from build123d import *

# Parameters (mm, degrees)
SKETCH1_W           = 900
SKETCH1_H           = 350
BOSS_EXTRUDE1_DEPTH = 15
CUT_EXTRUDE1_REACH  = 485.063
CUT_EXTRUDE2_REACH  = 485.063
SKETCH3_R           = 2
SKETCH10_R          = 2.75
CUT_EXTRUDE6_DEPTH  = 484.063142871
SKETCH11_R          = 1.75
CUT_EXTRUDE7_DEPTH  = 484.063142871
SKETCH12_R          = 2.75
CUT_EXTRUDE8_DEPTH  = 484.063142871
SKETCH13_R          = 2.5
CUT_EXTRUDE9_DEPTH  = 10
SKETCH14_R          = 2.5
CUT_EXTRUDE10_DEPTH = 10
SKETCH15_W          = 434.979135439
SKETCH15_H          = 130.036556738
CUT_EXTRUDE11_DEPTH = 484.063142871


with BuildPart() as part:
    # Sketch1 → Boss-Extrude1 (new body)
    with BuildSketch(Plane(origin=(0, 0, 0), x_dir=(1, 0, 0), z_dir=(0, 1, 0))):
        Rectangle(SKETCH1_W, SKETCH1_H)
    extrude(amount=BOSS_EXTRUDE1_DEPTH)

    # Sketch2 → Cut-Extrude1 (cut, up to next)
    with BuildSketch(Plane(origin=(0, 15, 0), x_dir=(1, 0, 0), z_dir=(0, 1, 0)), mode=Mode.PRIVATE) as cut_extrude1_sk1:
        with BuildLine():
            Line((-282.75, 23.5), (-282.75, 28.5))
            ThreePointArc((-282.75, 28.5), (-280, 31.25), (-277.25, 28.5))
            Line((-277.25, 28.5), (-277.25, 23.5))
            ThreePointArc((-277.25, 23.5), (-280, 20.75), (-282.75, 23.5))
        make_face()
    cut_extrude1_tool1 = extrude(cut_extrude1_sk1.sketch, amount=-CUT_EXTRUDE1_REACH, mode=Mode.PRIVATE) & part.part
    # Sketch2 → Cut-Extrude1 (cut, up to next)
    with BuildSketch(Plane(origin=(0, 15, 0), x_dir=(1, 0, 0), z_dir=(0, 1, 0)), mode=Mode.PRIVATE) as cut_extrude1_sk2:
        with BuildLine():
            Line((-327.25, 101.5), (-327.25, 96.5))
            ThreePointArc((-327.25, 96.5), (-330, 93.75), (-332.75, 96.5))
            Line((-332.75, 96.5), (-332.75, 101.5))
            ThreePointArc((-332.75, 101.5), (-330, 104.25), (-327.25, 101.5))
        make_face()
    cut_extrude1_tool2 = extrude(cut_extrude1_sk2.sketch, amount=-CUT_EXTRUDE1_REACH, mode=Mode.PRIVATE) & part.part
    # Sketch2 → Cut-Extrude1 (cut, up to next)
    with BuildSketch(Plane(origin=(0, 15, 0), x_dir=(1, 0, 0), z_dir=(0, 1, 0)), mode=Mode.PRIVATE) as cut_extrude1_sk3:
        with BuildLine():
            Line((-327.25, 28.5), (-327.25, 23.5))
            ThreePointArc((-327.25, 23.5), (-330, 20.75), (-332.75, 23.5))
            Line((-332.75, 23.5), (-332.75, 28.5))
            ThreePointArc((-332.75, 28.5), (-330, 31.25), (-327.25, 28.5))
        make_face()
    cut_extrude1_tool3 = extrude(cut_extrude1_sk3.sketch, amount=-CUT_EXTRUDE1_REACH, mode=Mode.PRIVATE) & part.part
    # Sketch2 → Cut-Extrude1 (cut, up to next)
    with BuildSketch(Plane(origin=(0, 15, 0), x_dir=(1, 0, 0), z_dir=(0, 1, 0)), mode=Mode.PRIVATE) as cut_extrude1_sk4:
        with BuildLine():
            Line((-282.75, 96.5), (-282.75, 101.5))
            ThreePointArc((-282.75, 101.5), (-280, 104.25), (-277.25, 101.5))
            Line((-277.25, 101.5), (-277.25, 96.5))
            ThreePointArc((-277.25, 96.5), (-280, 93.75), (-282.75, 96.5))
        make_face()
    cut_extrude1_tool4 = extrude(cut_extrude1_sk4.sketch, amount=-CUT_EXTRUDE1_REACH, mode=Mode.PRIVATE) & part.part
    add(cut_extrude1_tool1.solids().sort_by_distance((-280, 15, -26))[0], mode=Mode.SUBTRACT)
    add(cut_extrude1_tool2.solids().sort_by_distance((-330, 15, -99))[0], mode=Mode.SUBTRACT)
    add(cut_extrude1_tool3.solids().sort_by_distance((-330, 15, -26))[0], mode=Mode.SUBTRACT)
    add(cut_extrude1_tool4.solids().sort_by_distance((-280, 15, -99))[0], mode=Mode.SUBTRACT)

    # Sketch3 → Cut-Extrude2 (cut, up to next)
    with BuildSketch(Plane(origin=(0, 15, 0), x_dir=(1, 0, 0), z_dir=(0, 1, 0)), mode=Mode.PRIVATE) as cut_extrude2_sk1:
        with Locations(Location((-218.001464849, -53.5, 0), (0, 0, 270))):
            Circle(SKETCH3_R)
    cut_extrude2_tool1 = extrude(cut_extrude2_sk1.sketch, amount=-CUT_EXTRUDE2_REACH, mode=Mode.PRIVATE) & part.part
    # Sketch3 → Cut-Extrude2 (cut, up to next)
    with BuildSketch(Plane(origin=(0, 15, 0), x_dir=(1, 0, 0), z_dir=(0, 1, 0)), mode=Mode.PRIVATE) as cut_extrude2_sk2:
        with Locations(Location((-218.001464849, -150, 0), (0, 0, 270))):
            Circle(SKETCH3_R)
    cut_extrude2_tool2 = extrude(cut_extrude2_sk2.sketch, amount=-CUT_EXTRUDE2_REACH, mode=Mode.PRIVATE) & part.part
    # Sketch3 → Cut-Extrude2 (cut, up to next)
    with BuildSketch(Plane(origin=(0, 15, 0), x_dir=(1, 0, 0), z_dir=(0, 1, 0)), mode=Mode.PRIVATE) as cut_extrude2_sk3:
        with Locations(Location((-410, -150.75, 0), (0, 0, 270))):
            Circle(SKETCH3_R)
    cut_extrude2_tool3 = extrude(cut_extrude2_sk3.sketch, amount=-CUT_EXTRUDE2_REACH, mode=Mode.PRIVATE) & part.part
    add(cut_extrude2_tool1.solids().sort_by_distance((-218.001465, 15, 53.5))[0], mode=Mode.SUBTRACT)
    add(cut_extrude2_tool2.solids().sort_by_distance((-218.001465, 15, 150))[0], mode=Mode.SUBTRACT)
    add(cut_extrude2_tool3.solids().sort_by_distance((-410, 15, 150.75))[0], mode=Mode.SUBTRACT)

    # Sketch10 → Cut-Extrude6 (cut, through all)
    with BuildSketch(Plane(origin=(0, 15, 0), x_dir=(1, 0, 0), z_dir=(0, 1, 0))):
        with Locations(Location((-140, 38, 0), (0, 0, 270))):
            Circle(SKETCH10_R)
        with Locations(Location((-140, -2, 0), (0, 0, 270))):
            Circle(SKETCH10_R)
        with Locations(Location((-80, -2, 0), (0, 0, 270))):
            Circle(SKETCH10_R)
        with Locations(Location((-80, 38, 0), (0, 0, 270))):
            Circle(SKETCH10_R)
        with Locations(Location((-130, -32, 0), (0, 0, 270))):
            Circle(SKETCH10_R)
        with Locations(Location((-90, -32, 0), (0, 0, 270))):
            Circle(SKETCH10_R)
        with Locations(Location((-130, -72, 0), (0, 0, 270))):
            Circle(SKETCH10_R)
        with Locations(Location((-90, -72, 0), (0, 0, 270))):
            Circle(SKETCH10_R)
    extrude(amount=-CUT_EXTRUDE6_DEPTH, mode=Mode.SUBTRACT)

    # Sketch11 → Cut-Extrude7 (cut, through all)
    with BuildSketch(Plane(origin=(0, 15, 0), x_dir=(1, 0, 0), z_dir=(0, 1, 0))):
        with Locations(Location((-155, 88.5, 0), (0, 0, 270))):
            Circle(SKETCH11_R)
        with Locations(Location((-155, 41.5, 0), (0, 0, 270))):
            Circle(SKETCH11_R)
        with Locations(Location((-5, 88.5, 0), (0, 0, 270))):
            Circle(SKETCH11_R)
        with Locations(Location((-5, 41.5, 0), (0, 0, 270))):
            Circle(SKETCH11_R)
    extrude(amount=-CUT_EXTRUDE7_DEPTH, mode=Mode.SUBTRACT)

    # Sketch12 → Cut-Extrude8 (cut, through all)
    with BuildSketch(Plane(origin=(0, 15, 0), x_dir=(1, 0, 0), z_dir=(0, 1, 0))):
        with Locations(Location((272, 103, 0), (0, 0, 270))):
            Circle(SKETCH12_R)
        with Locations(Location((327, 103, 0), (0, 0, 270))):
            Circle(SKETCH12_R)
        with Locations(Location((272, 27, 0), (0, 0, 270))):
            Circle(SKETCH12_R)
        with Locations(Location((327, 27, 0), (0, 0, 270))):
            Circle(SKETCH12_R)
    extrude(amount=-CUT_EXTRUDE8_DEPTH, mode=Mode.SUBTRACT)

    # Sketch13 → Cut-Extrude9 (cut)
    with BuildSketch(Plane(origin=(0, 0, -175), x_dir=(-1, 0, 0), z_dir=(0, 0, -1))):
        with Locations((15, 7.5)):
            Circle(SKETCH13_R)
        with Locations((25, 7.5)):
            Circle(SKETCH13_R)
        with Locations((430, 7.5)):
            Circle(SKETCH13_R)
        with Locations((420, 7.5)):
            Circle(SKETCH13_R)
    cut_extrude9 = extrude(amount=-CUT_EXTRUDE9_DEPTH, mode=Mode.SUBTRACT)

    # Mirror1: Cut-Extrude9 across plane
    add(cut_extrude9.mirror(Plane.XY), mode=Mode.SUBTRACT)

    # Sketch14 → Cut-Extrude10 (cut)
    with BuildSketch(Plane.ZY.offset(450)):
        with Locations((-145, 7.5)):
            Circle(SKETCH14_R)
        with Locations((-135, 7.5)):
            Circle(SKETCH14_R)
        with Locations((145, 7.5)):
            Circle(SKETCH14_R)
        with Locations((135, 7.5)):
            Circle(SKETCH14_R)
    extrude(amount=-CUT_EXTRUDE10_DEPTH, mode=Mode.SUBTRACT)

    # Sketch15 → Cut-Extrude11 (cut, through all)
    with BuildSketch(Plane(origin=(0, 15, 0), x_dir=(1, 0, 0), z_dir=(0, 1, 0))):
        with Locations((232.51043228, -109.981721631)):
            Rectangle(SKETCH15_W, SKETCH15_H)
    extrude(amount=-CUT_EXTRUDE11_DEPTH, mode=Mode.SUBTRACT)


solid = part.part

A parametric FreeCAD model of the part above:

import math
import FreeCAD as App
import Part
import Sketcher


def add_polygon(sketch, points):
    """Adds a closed chain of lines whose ends are joined by coincident constraints."""
    first, n = sketch.GeometryCount, len(points)
    for a, b in zip(points, points[1:] + points[:1]):
        sketch.addGeometry(Part.LineSegment(App.Vector(*a, 0), App.Vector(*b, 0)), False)
    for i in range(n):
        sketch.addConstraint(Sketcher.Constraint("Coincident", first + i, 2, first + (i + 1) % n, 1))

doc = App.newDocument("Part")
params = doc.addObject("Spreadsheet::Sheet", "Params")
for row, (alias, value) in enumerate([
    ("sketch1_width", "900 mm"),
    ("sketch1_height", "350 mm"),
    ("pad1_length", "15 mm"),
    ("sketch2_height", "5 mm"),
    ("sketch2_radius", "2.75 mm"),
    ("sketch3_height", "5 mm"),
    ("sketch3_radius", "2.75 mm"),
    ("sketch4_height", "5 mm"),
    ("sketch4_radius", "2.75 mm"),
    ("sketch5_height", "5 mm"),
    ("sketch5_radius", "2.75 mm"),
    ("sketch6_diameter", "4 mm"),
    ("sketch7_diameter", "4 mm"),
    ("sketch8_diameter", "4 mm"),
    ("sketch9_diameter", "5.5 mm"),
    ("sketch10_diameter", "3.5 mm"),
    ("sketch11_diameter", "5.5 mm"),
    ("sketch12_diameter", "5 mm"),
    ("pocket11_length", "10 mm"),
    ("sketch13_diameter", "5 mm"),
    ("pocket12_length", "10 mm"),
], start=1):
    params.set(f"A{row}", alias)
    params.set(f"B{row}", "=" + value)
    params.setAlias(f"B{row}", alias)

body = doc.addObject("PartDesign::Body", "Body")

# Sketch on XZ plane
sketch1 = body.newObject("Sketcher::SketchObject", "Sketch")
sketch1.AttachmentSupport = (doc.getObject("XZ_Plane"), [""])
sketch1.MapMode = "FlatFace"
add_polygon(sketch1, [(-450, -175), (-450, 175), (450, 175), (450, -175)])  # lines 0-3
sketch1.addConstraint([
    Sketcher.Constraint("Vertical", 0),
    Sketcher.Constraint("Horizontal", 1),
    Sketcher.Constraint("Vertical", 2),
    Sketcher.Constraint("Horizontal", 3),
    Sketcher.Constraint("Symmetric", 0, 2, 2, 2, -1, 1),
    Sketcher.Constraint("DistanceX", 1, 1, 1, 2, 900.0),
    Sketcher.Constraint("DistanceY", 0, 1, 0, 2, 350.0),
])
sketch1.setExpression("Constraints[9]", "Params.sketch1_width")
sketch1.setExpression("Constraints[10]", "Params.sketch1_height")
pad1 = body.newObject("PartDesign::Pad", "Pad")
pad1.Profile = sketch1
pad1.setExpression("Length", "Params.pad1_length")
pad1.Reversed = True

# Sketch on XZ plane
sketch2 = body.newObject("Sketcher::SketchObject", "Sketch001")
sketch2.AttachmentSupport = (doc.getObject("XZ_Plane"), [""])
sketch2.MapMode = "FlatFace"
sketch2.AttachmentOffset = App.Placement(App.Vector(0, 0, -15), App.Rotation())
sketch2.addGeometry([
    Part.LineSegment(App.Vector(-282.75, -28.5, 0), App.Vector(-282.75, -23.5, 0)),
    Part.ArcOfCircle(Part.Circle(App.Vector(-280, -23.5, 0), App.Vector(0, 0, 1), 2.75), math.radians(0), math.radians(180)),
    Part.LineSegment(App.Vector(-277.25, -23.5, 0), App.Vector(-277.25, -28.5, 0)),
    Part.ArcOfCircle(Part.Circle(App.Vector(-280, -28.5, 0), App.Vector(0, 0, 1), 2.75), math.radians(180), math.radians(360)),
], False)
sketch2.addConstraint([
    Sketcher.Constraint("Tangent", 0, 2, 1, 2),
    Sketcher.Constraint("Tangent", 1, 1, 2, 1),
    Sketcher.Constraint("Tangent", 2, 2, 3, 2),
    Sketcher.Constraint("Tangent", 3, 1, 0, 1),
    Sketcher.Constraint("Vertical", 0),
    Sketcher.Constraint("Vertical", 2),
    Sketcher.Constraint("DistanceY", 0, 1, 0, 2, 5.0),
    Sketcher.Constraint("Radius", 1, 2.75),
    Sketcher.Constraint("DistanceX", 1, 3, -1, 1, 280.0),
    Sketcher.Constraint("DistanceY", 1, 3, -1, 1, 23.5),
])
sketch2.setExpression("Constraints[6]", "Params.sketch2_height")
sketch2.setExpression("Constraints[7]", "Params.sketch2_radius")
pocket1 = body.newObject("PartDesign::Pocket", "Pocket")
pocket1.Profile = sketch2
pocket1.Type = "UpToFirst"
pocket1.Reversed = True

# Sketch on XZ plane
sketch3 = body.newObject("Sketcher::SketchObject", "Sketch002")
sketch3.AttachmentSupport = (doc.getObject("XZ_Plane"), [""])
sketch3.MapMode = "FlatFace"
sketch3.AttachmentOffset = App.Placement(App.Vector(0, 0, -15), App.Rotation())
sketch3.addGeometry([
    Part.LineSegment(App.Vector(-327.25, -96.5, 0), App.Vector(-327.25, -101.5, 0)),
    Part.ArcOfCircle(Part.Circle(App.Vector(-330, -101.5, 0), App.Vector(0, 0, 1), 2.75), math.radians(180), math.radians(360)),
    Part.LineSegment(App.Vector(-332.75, -101.5, 0), App.Vector(-332.75, -96.5, 0)),
    Part.ArcOfCircle(Part.Circle(App.Vector(-330, -96.5, 0), App.Vector(0, 0, 1), 2.75), math.radians(0), math.radians(180)),
], False)
sketch3.addConstraint([
    Sketcher.Constraint("Tangent", 0, 2, 1, 2),
    Sketcher.Constraint("Tangent", 1, 1, 2, 1),
    Sketcher.Constraint("Tangent", 2, 2, 3, 2),
    Sketcher.Constraint("Tangent", 3, 1, 0, 1),
    Sketcher.Constraint("Vertical", 0),
    Sketcher.Constraint("Vertical", 2),
    Sketcher.Constraint("DistanceY", 0, 2, 0, 1, 5.0),
    Sketcher.Constraint("Radius", 1, 2.75),
    Sketcher.Constraint("DistanceX", 1, 3, -1, 1, 330.0),
    Sketcher.Constraint("DistanceY", 1, 3, -1, 1, 101.5),
])
sketch3.setExpression("Constraints[6]", "Params.sketch3_height")
sketch3.setExpression("Constraints[7]", "Params.sketch3_radius")
pocket2 = body.newObject("PartDesign::Pocket", "Pocket001")
pocket2.Profile = sketch3
pocket2.Type = "UpToFirst"
pocket2.Reversed = True

# Sketch on XZ plane
sketch4 = body.newObject("Sketcher::SketchObject", "Sketch003")
sketch4.AttachmentSupport = (doc.getObject("XZ_Plane"), [""])
sketch4.MapMode = "FlatFace"
sketch4.AttachmentOffset = App.Placement(App.Vector(0, 0, -15), App.Rotation())
sketch4.addGeometry([
    Part.LineSegment(App.Vector(-327.25, -23.5, 0), App.Vector(-327.25, -28.5, 0)),
    Part.ArcOfCircle(Part.Circle(App.Vector(-330, -28.5, 0), App.Vector(0, 0, 1), 2.75), math.radians(180), math.radians(360)),
    Part.LineSegment(App.Vector(-332.75, -28.5, 0), App.Vector(-332.75, -23.5, 0)),
    Part.ArcOfCircle(Part.Circle(App.Vector(-330, -23.5, 0), App.Vector(0, 0, 1), 2.75), math.radians(0), math.radians(180)),
], False)
sketch4.addConstraint([
    Sketcher.Constraint("Tangent", 0, 2, 1, 2),
    Sketcher.Constraint("Tangent", 1, 1, 2, 1),
    Sketcher.Constraint("Tangent", 2, 2, 3, 2),
    Sketcher.Constraint("Tangent", 3, 1, 0, 1),
    Sketcher.Constraint("Vertical", 0),
    Sketcher.Constraint("Vertical", 2),
    Sketcher.Constraint("DistanceY", 0, 2, 0, 1, 5.0),
    Sketcher.Constraint("Radius", 1, 2.75),
    Sketcher.Constraint("DistanceX", 1, 3, -1, 1, 330.0),
    Sketcher.Constraint("DistanceY", 1, 3, -1, 1, 28.5),
])
sketch4.setExpression("Constraints[6]", "Params.sketch4_height")
sketch4.setExpression("Constraints[7]", "Params.sketch4_radius")
pocket3 = body.newObject("PartDesign::Pocket", "Pocket002")
pocket3.Profile = sketch4
pocket3.Type = "UpToFirst"
pocket3.Reversed = True

# Sketch on XZ plane
sketch5 = body.newObject("Sketcher::SketchObject", "Sketch004")
sketch5.AttachmentSupport = (doc.getObject("XZ_Plane"), [""])
sketch5.MapMode = "FlatFace"
sketch5.AttachmentOffset = App.Placement(App.Vector(0, 0, -15), App.Rotation())
sketch5.addGeometry([
    Part.LineSegment(App.Vector(-282.75, -101.5, 0), App.Vector(-282.75, -96.5, 0)),
    Part.ArcOfCircle(Part.Circle(App.Vector(-280, -96.5, 0), App.Vector(0, 0, 1), 2.75), math.radians(0), math.radians(180)),
    Part.LineSegment(App.Vector(-277.25, -96.5, 0), App.Vector(-277.25, -101.5, 0)),
    Part.ArcOfCircle(Part.Circle(App.Vector(-280, -101.5, 0), App.Vector(0, 0, 1), 2.75), math.radians(180), math.radians(360)),
], False)
sketch5.addConstraint([
    Sketcher.Constraint("Tangent", 0, 2, 1, 2),
    Sketcher.Constraint("Tangent", 1, 1, 2, 1),
    Sketcher.Constraint("Tangent", 2, 2, 3, 2),
    Sketcher.Constraint("Tangent", 3, 1, 0, 1),
    Sketcher.Constraint("Vertical", 0),
    Sketcher.Constraint("Vertical", 2),
    Sketcher.Constraint("DistanceY", 0, 1, 0, 2, 5.0),
    Sketcher.Constraint("Radius", 1, 2.75),
    Sketcher.Constraint("DistanceX", 1, 3, -1, 1, 280.0),
    Sketcher.Constraint("DistanceY", 1, 3, -1, 1, 96.5),
])
sketch5.setExpression("Constraints[6]", "Params.sketch5_height")
sketch5.setExpression("Constraints[7]", "Params.sketch5_radius")
pocket4 = body.newObject("PartDesign::Pocket", "Pocket003")
pocket4.Profile = sketch5
pocket4.Type = "UpToFirst"
pocket4.Reversed = True

# Sketch on XZ plane
sketch6 = body.newObject("Sketcher::SketchObject", "Sketch005")
sketch6.AttachmentSupport = (doc.getObject("XZ_Plane"), [""])
sketch6.MapMode = "FlatFace"
sketch6.AttachmentOffset = App.Placement(App.Vector(0, 0, -15), App.Rotation())
sketch6.addGeometry(Part.Circle(App.Vector(-218.001465, 53.5, 0), App.Vector(0, 0, 1), 2), False)
sketch6.addConstraint([
    Sketcher.Constraint("Diameter", 0, 4.0),
    Sketcher.Constraint("DistanceY", -1, 1, 0, 3, 53.5),
    Sketcher.Constraint("DistanceX", 0, 3, -1, 1, 218.001465),
])
sketch6.setExpression("Constraints[0]", "Params.sketch6_diameter")
pocket5 = body.newObject("PartDesign::Pocket", "Pocket004")
pocket5.Profile = sketch6
pocket5.Type = "UpToFirst"
pocket5.Reversed = True

# Sketch on XZ plane
sketch7 = body.newObject("Sketcher::SketchObject", "Sketch006")
sketch7.AttachmentSupport = (doc.getObject("XZ_Plane"), [""])
sketch7.MapMode = "FlatFace"
sketch7.AttachmentOffset = App.Placement(App.Vector(0, 0, -15), App.Rotation())
sketch7.addGeometry(Part.Circle(App.Vector(-218.001465, 150, 0), App.Vector(0, 0, 1), 2), False)
sketch7.addConstraint([
    Sketcher.Constraint("Diameter", 0, 4.0),
    Sketcher.Constraint("DistanceY", -1, 1, 0, 3, 150.0),
    Sketcher.Constraint("DistanceX", 0, 3, -1, 1, 218.001465),
])
sketch7.setExpression("Constraints[0]", "Params.sketch7_diameter")
pocket6 = body.newObject("PartDesign::Pocket", "Pocket005")
pocket6.Profile = sketch7
pocket6.Type = "UpToFirst"
pocket6.Reversed = True

# Sketch on XZ plane
sketch8 = body.newObject("Sketcher::SketchObject", "Sketch007")
sketch8.AttachmentSupport = (doc.getObject("XZ_Plane"), [""])
sketch8.MapMode = "FlatFace"
sketch8.AttachmentOffset = App.Placement(App.Vector(0, 0, -15), App.Rotation())
sketch8.addGeometry(Part.Circle(App.Vector(-410, 150.75, 0), App.Vector(0, 0, 1), 2), False)
sketch8.addConstraint([
    Sketcher.Constraint("Diameter", 0, 4.0),
    Sketcher.Constraint("DistanceX", 0, 3, -1, 1, 410.0),
    Sketcher.Constraint("DistanceY", -1, 1, 0, 3, 150.75),
])
sketch8.setExpression("Constraints[0]", "Params.sketch8_diameter")
pocket7 = body.newObject("PartDesign::Pocket", "Pocket006")
pocket7.Profile = sketch8
pocket7.Type = "UpToFirst"
pocket7.Reversed = True

# Sketch on XZ plane
sketch9 = body.newObject("Sketcher::SketchObject", "Sketch008")
sketch9.AttachmentSupport = (doc.getObject("XZ_Plane"), [""])
sketch9.MapMode = "FlatFace"
sketch9.AttachmentOffset = App.Placement(App.Vector(0, 0, -15), App.Rotation())
sketch9.addGeometry([
    Part.Circle(App.Vector(-140, -38, 0), App.Vector(0, 0, 1), 2.75),  # 0
    Part.Circle(App.Vector(-140, 2, 0), App.Vector(0, 0, 1), 2.75),  # 1
    Part.Circle(App.Vector(-80, 2, 0), App.Vector(0, 0, 1), 2.75),  # 2
    Part.Circle(App.Vector(-80, -38, 0), App.Vector(0, 0, 1), 2.75),  # 3
    Part.Circle(App.Vector(-130, 32, 0), App.Vector(0, 0, 1), 2.75),  # 4
    Part.Circle(App.Vector(-90, 32, 0), App.Vector(0, 0, 1), 2.75),  # 5
    Part.Circle(App.Vector(-130, 72, 0), App.Vector(0, 0, 1), 2.75),  # 6
    Part.Circle(App.Vector(-90, 72, 0), App.Vector(0, 0, 1), 2.75),  # 7
], False)
sketch9.addConstraint([
    Sketcher.Constraint("Equal", 0, 1),
    Sketcher.Constraint("Equal", 1, 2),
    Sketcher.Constraint("Equal", 2, 3),
    Sketcher.Constraint("Equal", 3, 4),
    Sketcher.Constraint("Equal", 4, 5),
    Sketcher.Constraint("Equal", 5, 6),
    Sketcher.Constraint("Equal", 6, 7),
    Sketcher.Constraint("Horizontal", 1, 3, 2, 3),
    Sketcher.Constraint("Horizontal", 0, 3, 3, 3),
    Sketcher.Constraint("Horizontal", 4, 3, 5, 3),
    Sketcher.Constraint("Horizontal", 6, 3, 7, 3),
    Sketcher.Constraint("Vertical", 0, 3, 1, 3),
    Sketcher.Constraint("Vertical", 2, 3, 3, 3),
    Sketcher.Constraint("Vertical", 4, 3, 6, 3),
    Sketcher.Constraint("Vertical", 5, 3, 7, 3),
    Sketcher.Constraint("Diameter", 0, 5.5),
    Sketcher.Constraint("DistanceX", 0, 3, -1, 1, 140.0),
    Sketcher.Constraint("DistanceY", 0, 3, -1, 1, 38.0),
    Sketcher.Constraint("DistanceY", -1, 1, 1, 3, 2.0),
    Sketcher.Constraint("DistanceX", 2, 3, -1, 1, 80.0),
    Sketcher.Constraint("DistanceX", 4, 3, -1, 1, 130.0),
    Sketcher.Constraint("DistanceY", -1, 1, 4, 3, 32.0),
    Sketcher.Constraint("DistanceX", 5, 3, -1, 1, 90.0),
    Sketcher.Constraint("DistanceY", -1, 1, 6, 3, 72.0),
])
sketch9.setExpression("Constraints[15]", "Params.sketch9_diameter")
pocket8 = body.newObject("PartDesign::Pocket", "Pocket007")
pocket8.Profile = sketch9
pocket8.Type = "ThroughAll"
pocket8.Reversed = True

# Sketch on XZ plane
sketch10 = body.newObject("Sketcher::SketchObject", "Sketch009")
sketch10.AttachmentSupport = (doc.getObject("XZ_Plane"), [""])
sketch10.MapMode = "FlatFace"
sketch10.AttachmentOffset = App.Placement(App.Vector(0, 0, -15), App.Rotation())
sketch10.addGeometry([
    Part.Circle(App.Vector(-155, -88.5, 0), App.Vector(0, 0, 1), 1.75),
    Part.Circle(App.Vector(-155, -41.5, 0), App.Vector(0, 0, 1), 1.75),
    Part.Circle(App.Vector(-5, -88.5, 0), App.Vector(0, 0, 1), 1.75),
    Part.Circle(App.Vector(-5, -41.5, 0), App.Vector(0, 0, 1), 1.75),
], False)
sketch10.addConstraint([
    Sketcher.Constraint("Equal", 0, 1),
    Sketcher.Constraint("Equal", 1, 2),
    Sketcher.Constraint("Equal", 2, 3),
    Sketcher.Constraint("Horizontal", 0, 3, 2, 3),
    Sketcher.Constraint("Horizontal", 1, 3, 3, 3),
    Sketcher.Constraint("Vertical", 0, 3, 1, 3),
    Sketcher.Constraint("Vertical", 2, 3, 3, 3),
    Sketcher.Constraint("Diameter", 0, 3.5),
    Sketcher.Constraint("DistanceX", 0, 3, -1, 1, 155.0),
    Sketcher.Constraint("DistanceX", 2, 3, -1, 1, 5.0),
    Sketcher.Constraint("DistanceY", 0, 3, 1, 3, 47.0),
    Sketcher.Constraint("DistanceY", 0, 3, -1, 1, 88.5),
])
sketch10.setExpression("Constraints[7]", "Params.sketch10_diameter")
pocket9 = body.newObject("PartDesign::Pocket", "Pocket008")
pocket9.Profile = sketch10
pocket9.Type = "ThroughAll"
pocket9.Reversed = True

# Sketch on XZ plane
sketch11 = body.newObject("Sketcher::SketchObject", "Sketch010")
sketch11.AttachmentSupport = (doc.getObject("XZ_Plane"), [""])
sketch11.MapMode = "FlatFace"
sketch11.AttachmentOffset = App.Placement(App.Vector(0, 0, -15), App.Rotation())
sketch11.addGeometry([
    Part.Circle(App.Vector(272, -103, 0), App.Vector(0, 0, 1), 2.75),
    Part.Circle(App.Vector(327, -103, 0), App.Vector(0, 0, 1), 2.75),
    Part.Circle(App.Vector(272, -27, 0), App.Vector(0, 0, 1), 2.75),
    Part.Circle(App.Vector(327, -27, 0), App.Vector(0, 0, 1), 2.75),
], False)
sketch11.addConstraint([
    Sketcher.Constraint("Equal", 0, 1),
    Sketcher.Constraint("Equal", 1, 2),
    Sketcher.Constraint("Equal", 2, 3),
    Sketcher.Constraint("Horizontal", 0, 3, 1, 3),
    Sketcher.Constraint("Horizontal", 2, 3, 3, 3),
    Sketcher.Constraint("Vertical", 0, 3, 2, 3),
    Sketcher.Constraint("Vertical", 1, 3, 3, 3),
    Sketcher.Constraint("Diameter", 0, 5.5),
    Sketcher.Constraint("DistanceX", -1, 1, 0, 3, 272.0),
    Sketcher.Constraint("DistanceY", 0, 3, -1, 1, 103.0),
    Sketcher.Constraint("DistanceX", -1, 1, 1, 3, 327.0),
    Sketcher.Constraint("DistanceY", 2, 3, -1, 1, 27.0),
])
sketch11.setExpression("Constraints[7]", "Params.sketch11_diameter")
pocket10 = body.newObject("PartDesign::Pocket", "Pocket009")
pocket10.Profile = sketch11
pocket10.Type = "ThroughAll"
pocket10.Reversed = True

# Sketch on XY plane
sketch12 = body.newObject("Sketcher::SketchObject", "Sketch011")
sketch12.AttachmentSupport = (doc.getObject("XY_Plane"), [""])
sketch12.MapMode = "FlatFace"
sketch12.AttachmentOffset = App.Placement(App.Vector(0, 0, -175), App.Rotation())
sketch12.addGeometry([
    Part.Circle(App.Vector(-15, 7.5, 0), App.Vector(0, 0, 1), 2.5),
    Part.Circle(App.Vector(-25, 7.5, 0), App.Vector(0, 0, 1), 2.5),
    Part.Circle(App.Vector(-430, 7.5, 0), App.Vector(0, 0, 1), 2.5),
    Part.Circle(App.Vector(-420, 7.5, 0), App.Vector(0, 0, 1), 2.5),
], False)
sketch12.addConstraint([
    Sketcher.Constraint("Equal", 0, 1),
    Sketcher.Constraint("Equal", 1, 2),
    Sketcher.Constraint("Equal", 2, 3),
    Sketcher.Constraint("Horizontal", 0, 3, 1, 3),
    Sketcher.Constraint("Horizontal", 1, 3, 2, 3),
    Sketcher.Constraint("Horizontal", 2, 3, 3, 3),
    Sketcher.Constraint("Diameter", 0, 5.0),
    Sketcher.Constraint("DistanceX", 0, 3, -1, 1, 15.0),
    Sketcher.Constraint("DistanceX", 1, 3, -1, 1, 25.0),
    Sketcher.Constraint("DistanceX", 2, 3, -1, 1, 430.0),
    Sketcher.Constraint("DistanceX", 3, 3, -1, 1, 420.0),
    Sketcher.Constraint("DistanceY", -1, 1, 0, 3, 7.5),
])
sketch12.setExpression("Constraints[6]", "Params.sketch12_diameter")
pocket11 = body.newObject("PartDesign::Pocket", "Pocket010")
pocket11.Profile = sketch12
pocket11.setExpression("Length", "Params.pocket11_length")
pocket11.Reversed = True
doc.recompute()

mirrored = body.newObject("PartDesign::Mirrored", "Mirrored")
mirrored.Originals = [pocket11]
mirrored.MirrorPlane = (doc.getObject("XY_Plane"), [""])
body.Tip = mirrored

# Sketch on YZ plane
sketch13 = body.newObject("Sketcher::SketchObject", "Sketch012")
sketch13.AttachmentSupport = (doc.getObject("YZ_Plane"), [""])
sketch13.MapMode = "FlatFace"
sketch13.AttachmentOffset = App.Placement(App.Vector(0, 0, -450), App.Rotation())
sketch13.addGeometry([
    Part.Circle(App.Vector(7.5, -145, 0), App.Vector(0, 0, 1), 2.5),
    Part.Circle(App.Vector(7.5, -135, 0), App.Vector(0, 0, 1), 2.5),
    Part.Circle(App.Vector(7.5, 145, 0), App.Vector(0, 0, 1), 2.5),
    Part.Circle(App.Vector(7.5, 135, 0), App.Vector(0, 0, 1), 2.5),
], False)
sketch13.addConstraint([
    Sketcher.Constraint("Equal", 0, 1),
    Sketcher.Constraint("Equal", 1, 2),
    Sketcher.Constraint("Equal", 2, 3),
    Sketcher.Constraint("Symmetric", 0, 3, 2, 3, -1),
    Sketcher.Constraint("Symmetric", 1, 3, 3, 3, -1),
    Sketcher.Constraint("Vertical", 0, 3, 1, 3),
    Sketcher.Constraint("Diameter", 0, 5.0),
    Sketcher.Constraint("DistanceY", 0, 3, -1, 1, 145.0),
    Sketcher.Constraint("DistanceY", 1, 3, -1, 1, 135.0),
    Sketcher.Constraint("DistanceX", -1, 1, 0, 3, 7.5),
])
sketch13.setExpression("Constraints[6]", "Params.sketch13_diameter")
pocket12 = body.newObject("PartDesign::Pocket", "Pocket011")
pocket12.Profile = sketch13
pocket12.setExpression("Length", "Params.pocket12_length")
pocket12.Reversed = True

# Sketch on XZ plane
sketch14 = body.newObject("Sketcher::SketchObject", "Sketch013")
sketch14.AttachmentSupport = (doc.getObject("XZ_Plane"), [""])
sketch14.MapMode = "FlatFace"
sketch14.AttachmentOffset = App.Placement(App.Vector(0, 0, -15), App.Rotation())
add_polygon(sketch14, [(15.020865, 44.963443), (15.020865, 175), (450, 175), (450, 44.963443)])  # lines 0-3
sketch14.addConstraint([
    Sketcher.Constraint("Vertical", 0),
    Sketcher.Constraint("Horizontal", 1),
    Sketcher.Constraint("Vertical", 2),
    Sketcher.Constraint("Horizontal", 3),
    Sketcher.Constraint("DistanceY", -1, 1, 0, 2, 175.0),
    Sketcher.Constraint("DistanceX", -1, 1, 1, 2, 450.0),
    Sketcher.Constraint("DistanceX", 1, 1, 1, 2, 434.979135),
    Sketcher.Constraint("DistanceY", 0, 1, 0, 2, 130.036557),
])
pocket13 = body.newObject("PartDesign::Pocket", "Pocket012")
pocket13.Profile = sketch14
pocket13.Type = "ThroughAll"
pocket13.Reversed = True

doc.recompute()
